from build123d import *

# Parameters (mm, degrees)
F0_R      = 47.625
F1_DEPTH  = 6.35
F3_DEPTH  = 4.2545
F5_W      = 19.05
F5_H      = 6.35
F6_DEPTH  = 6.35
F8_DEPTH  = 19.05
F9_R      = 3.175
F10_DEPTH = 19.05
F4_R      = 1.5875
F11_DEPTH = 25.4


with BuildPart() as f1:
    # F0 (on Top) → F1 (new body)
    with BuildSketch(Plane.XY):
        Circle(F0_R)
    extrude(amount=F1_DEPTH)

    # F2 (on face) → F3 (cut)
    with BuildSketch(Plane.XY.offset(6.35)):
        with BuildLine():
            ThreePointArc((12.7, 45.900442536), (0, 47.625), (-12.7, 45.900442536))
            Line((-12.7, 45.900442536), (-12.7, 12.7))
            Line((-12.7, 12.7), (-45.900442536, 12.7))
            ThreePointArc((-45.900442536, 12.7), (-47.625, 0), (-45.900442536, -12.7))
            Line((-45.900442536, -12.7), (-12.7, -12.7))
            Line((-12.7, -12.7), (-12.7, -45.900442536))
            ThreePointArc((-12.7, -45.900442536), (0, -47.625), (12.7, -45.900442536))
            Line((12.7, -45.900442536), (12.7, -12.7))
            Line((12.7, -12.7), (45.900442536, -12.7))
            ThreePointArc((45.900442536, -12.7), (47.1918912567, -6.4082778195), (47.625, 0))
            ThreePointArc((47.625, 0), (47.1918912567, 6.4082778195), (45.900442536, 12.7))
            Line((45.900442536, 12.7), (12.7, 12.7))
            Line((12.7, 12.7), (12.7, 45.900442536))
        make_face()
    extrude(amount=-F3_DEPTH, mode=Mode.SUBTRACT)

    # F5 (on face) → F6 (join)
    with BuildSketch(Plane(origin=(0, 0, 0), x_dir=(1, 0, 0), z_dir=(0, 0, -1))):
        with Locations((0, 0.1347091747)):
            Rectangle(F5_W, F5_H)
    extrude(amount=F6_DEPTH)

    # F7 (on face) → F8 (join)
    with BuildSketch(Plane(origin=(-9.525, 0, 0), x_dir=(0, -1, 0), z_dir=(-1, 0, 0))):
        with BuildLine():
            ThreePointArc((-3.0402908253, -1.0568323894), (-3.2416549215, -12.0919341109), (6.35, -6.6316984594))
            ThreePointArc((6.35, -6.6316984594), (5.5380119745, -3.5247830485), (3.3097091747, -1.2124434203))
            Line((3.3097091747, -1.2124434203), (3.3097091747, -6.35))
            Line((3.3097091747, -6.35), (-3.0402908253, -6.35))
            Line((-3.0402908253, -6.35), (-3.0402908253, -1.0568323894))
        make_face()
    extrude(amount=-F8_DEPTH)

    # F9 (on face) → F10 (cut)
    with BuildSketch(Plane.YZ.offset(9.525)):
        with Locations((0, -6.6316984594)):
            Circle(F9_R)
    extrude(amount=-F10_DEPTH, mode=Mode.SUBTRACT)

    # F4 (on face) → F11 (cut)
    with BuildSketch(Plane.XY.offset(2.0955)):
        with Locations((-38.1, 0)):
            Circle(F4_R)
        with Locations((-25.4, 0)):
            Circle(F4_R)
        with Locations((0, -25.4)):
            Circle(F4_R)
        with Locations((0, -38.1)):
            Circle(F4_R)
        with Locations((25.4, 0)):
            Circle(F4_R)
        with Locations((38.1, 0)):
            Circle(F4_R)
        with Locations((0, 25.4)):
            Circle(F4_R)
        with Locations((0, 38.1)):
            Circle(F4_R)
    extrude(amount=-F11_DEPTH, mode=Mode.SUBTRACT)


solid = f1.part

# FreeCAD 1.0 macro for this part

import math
import FreeCAD as App
import Part
import Sketcher

V = App.Vector
Q = App.Units.Quantity

doc = App.newDocument("Part")
params = doc.addObject("Spreadsheet::Sheet", "Params")
for row, (alias, value) in enumerate([
    ("sketch1_diameter", "3.75 in"),
    ("pad1_length", "0.25 in"),
    ("sketch2_radius", "1.875 in"),
    ("pocket1_length", "0.1675 in"),
    ("sketch3_width", "0.75 in"),
    ("sketch3_height", "0.25 in"),
    ("pad2_length", "0.25 in"),
    ("sketch4_radius", "0.25 in"),
    ("sketch4_width", "0.25 in"),
    ("pad3_length", "0.75 in"),
    ("sketch5_diameter", "0.25 in"),
    ("pocket2_length", "0.75 in"),
    ("sketch6_diameter", "0.125 in"),
    ("pocket3_length", "1 in"),
], start=1):
    params.set(f"A{row}", alias)
    params.set(f"B{row}", "=" + value)
    params.setAlias(f"B{row}", alias)

body = doc.addObject("PartDesign::Body", "Body")

sketch1 = body.newObject("Sketcher::SketchObject", "Sketch")
sketch1.AttachmentSupport = (doc.getObject("XY_Plane"), [""])
sketch1.MapMode = "FlatFace"
sketch1.addGeometry(Part.Circle(V(0, 0, 0), V(0, 0, 1), 47.625), False)
sketch1.addConstraint([
    Sketcher.Constraint("Coincident", 0, 3, -1, 1),
    Sketcher.Constraint("Diameter", 0, Q("3.75 in")),
])
sketch1.setExpression("Constraints[1]", "Params.sketch1_diameter")
pad1 = body.newObject("PartDesign::Pad", "Pad")
pad1.Profile = sketch1
pad1.setExpression("Length", "Params.pad1_length")

sketch2 = body.newObject("Sketcher::SketchObject", "Sketch001")
sketch2.AttachmentSupport = (doc.getObject("XY_Plane"), [""])
sketch2.MapMode = "FlatFace"
sketch2.AttachmentOffset = App.Placement(V(0, 0, 0.25 * 25.4), App.Rotation())
sketch2.addGeometry([
    Part.ArcOfCircle(Part.Circle(V(0, 0, 0), V(0, 0, 1), 47.625), math.radians(74.53399), math.radians(105.46601)),
    Part.LineSegment(V(-12.7, 45.900443, 0), V(-12.7, 12.7, 0)),
    Part.LineSegment(V(-12.7, 12.7, 0), V(-45.900443, 12.7, 0)),
    Part.ArcOfCircle(Part.Circle(V(0, 0, 0), V(0, 0, 1), 47.625), math.radians(164.53399), math.radians(195.46601)),
    Part.LineSegment(V(-45.900443, -12.7, 0), V(-12.7, -12.7, 0)),
    Part.LineSegment(V(-12.7, -12.7, 0), V(-12.7, -45.900443, 0)),
    Part.ArcOfCircle(Part.Circle(V(0, 0, 0), V(0, 0, 1), 47.625), math.radians(-105.46601), math.radians(-74.53399)),
    Part.LineSegment(V(12.7, -45.900443, 0), V(12.7, -12.7, 0)),
    Part.LineSegment(V(12.7, -12.7, 0), V(45.900443, -12.7, 0)),
    Part.ArcOfCircle(Part.Circle(V(0, 0, 0), V(0, 0, 1), 47.625), math.radians(-15.46601), math.radians(0)),
    Part.ArcOfCircle(Part.Circle(V(0, 0, 0), V(0, 0, 1), 47.625), math.radians(0), math.radians(15.46601)),
    Part.LineSegment(V(45.900443, 12.7, 0), V(12.7, 12.7, 0)),
    Part.LineSegment(V(12.7, 12.7, 0), V(12.7, 45.900443, 0)),
], False)
sketch2.addConstraint([
    Sketcher.Constraint("Coincident", 0, 2, 1, 1),
    Sketcher.Constraint("Coincident", 1, 2, 2, 1),
    Sketcher.Constraint("Coincident", 2, 2, 3, 1),
    Sketcher.Constraint("Coincident", 3, 2, 4, 1),
    Sketcher.Constraint("Coincident", 4, 2, 5, 1),
    Sketcher.Constraint("Coincident", 5, 2, 6, 1),
    Sketcher.Constraint("Coincident", 6, 2, 7, 1),
    Sketcher.Constraint("Coincident", 7, 2, 8, 1),
    Sketcher.Constraint("Coincident", 8, 2, 9, 1),
    Sketcher.Constraint("Tangent", 9, 2, 10, 1),
    Sketcher.Constraint("Coincident", 10, 2, 11, 1),
    Sketcher.Constraint("Coincident", 11, 2, 12, 1),
    Sketcher.Constraint("Coincident", 12, 2, 0, 1),
    Sketcher.Constraint("Vertical", 1),
    Sketcher.Constraint("Horizontal", 2),
    Sketcher.Constraint("Horizontal", 4),
    Sketcher.Constraint("Vertical", 5),
    Sketcher.Constraint("Vertical", 7),
    Sketcher.Constraint("Horizontal", 8),
    Sketcher.Constraint("Horizontal", 11),
    Sketcher.Constraint("Vertical", 12),
    Sketcher.Constraint("Coincident", 0, 3, -1, 1),
    Sketcher.Constraint("Coincident", 3, 3, -1, 1),
    Sketcher.Constraint("Coincident", 6, 3, -1, 1),
    Sketcher.Constraint("Coincident", 9, 3, -1, 1),
    Sketcher.Constraint("Equal", 0, 3),
    Sketcher.Constraint("Equal", 3, 6),
    Sketcher.Constraint("Equal", 6, 9),
    Sketcher.Constraint("Equal", 9, 10),
    Sketcher.Constraint("Symmetric", 1, 2, 7, 2, -1, 1),
    Sketcher.Constraint("Symmetric", 4, 2, 11, 2, -1, 1),
    Sketcher.Constraint("Symmetric", 4, 2, 7, 2, -2),
    Sketcher.Constraint("PointOnObject", 9, 2, -1),
    Sketcher.Constraint("Equal", 11, 1),
    Sketcher.Constraint("Radius", 0, Q("1.875 in")),
    Sketcher.Constraint("DistanceY", 3, 2, 2, 2, Q("1 in")),
])
sketch2.setExpression("Constraints[34]", "Params.sketch2_radius")
pocket1 = body.newObject("PartDesign::Pocket", "Pocket")
pocket1.Profile = sketch2
pocket1.setExpression("Length", "Params.pocket1_length")

sketch3 = body.newObject("Sketcher::SketchObject", "Sketch002")
sketch3.AttachmentSupport = (doc.getObject("XY_Plane"), [""])
sketch3.MapMode = "FlatFace"
sketch3.addGeometry([
    Part.LineSegment(V(-9.525, -3.309709, 0), V(-9.525, 3.040291, 0)),
    Part.LineSegment(V(-9.525, 3.040291, 0), V(9.525, 3.040291, 0)),
    Part.LineSegment(V(9.525, 3.040291, 0), V(9.525, -3.309709, 0)),
    Part.LineSegment(V(9.525, -3.309709, 0), V(-9.525, -3.309709, 0)),
], False)
sketch3.addConstraint([
    Sketcher.Constraint("Coincident", 0, 2, 1, 1),
    Sketcher.Constraint("Coincident", 1, 2, 2, 1),
    Sketcher.Constraint("Coincident", 2, 2, 3, 1),
    Sketcher.Constraint("Coincident", 3, 2, 0, 1),
    Sketcher.Constraint("Vertical", 0),
    Sketcher.Constraint("Horizontal", 1),
    Sketcher.Constraint("Vertical", 2),
    Sketcher.Constraint("Horizontal", 3),
    Sketcher.Constraint("DistanceX", 1, 1, 1, 2, Q("0.75 in")),
    Sketcher.Constraint("DistanceY", 0, 1, 0, 2, Q("0.25 in")),
    Sketcher.Constraint("DistanceX", 0, 2, -1, 1, Q("0.375 in")),
    Sketcher.Constraint("DistanceY", -1, 1, 0, 2, Q("3.040291 mm")),
])
sketch3.setExpression("Constraints[8]", "Params.sketch3_width")
sketch3.setExpression("Constraints[9]", "Params.sketch3_height")
pad2 = body.newObject("PartDesign::Pad", "Pad001")
pad2.Profile = sketch3
pad2.setExpression("Length", "Params.pad2_length")
pad2.Reversed = True

sketch4 = body.newObject("Sketcher::SketchObject", "Sketch003")
sketch4.AttachmentSupport = (doc.getObject("YZ_Plane"), [""])
sketch4.MapMode = "FlatFace"
sketch4.AttachmentOffset = App.Placement(V(0, 0, -0.375 * 25.4), App.Rotation())
sketch4.addGeometry([
    Part.ArcOfCircle(Part.Circle(V(0, -6.631698, 0), V(0, 0, 1), 6.35), math.radians(180), math.radians(421.393859)),
    Part.ArcOfCircle(Part.Circle(V(0, -6.631698, 0), V(0, 0, 1), 6.35), math.radians(121.413722), math.radians(180)),
    Part.LineSegment(V(-3.309709, -1.212443, 0), V(-3.309709, -6.35, 0)),
    Part.LineSegment(V(-3.309709, -6.35, 0), V(3.040291, -6.35, 0)),
    Part.LineSegment(V(3.040291, -6.35, 0), V(3.040291, -1.056832, 0)),
], False)
sketch4.addConstraint([
    Sketcher.Constraint("Tangent", 0, 1, 1, 2),
    Sketcher.Constraint("Coincident", 1, 1, 2, 1),
    Sketcher.Constraint("Coincident", 2, 2, 3, 1),
    Sketcher.Constraint("Coincident", 3, 2, 4, 1),
    Sketcher.Constraint("Coincident", 4, 2, 0, 2),
    Sketcher.Constraint("Vertical", 2),
    Sketcher.Constraint("Horizontal", 3),
    Sketcher.Constraint("Vertical", 4),
    Sketcher.Constraint("Equal", 0, 1),
    Sketcher.Constraint("PointOnObject", 0, 3, -2),
    Sketcher.Constraint("Horizontal", 1, 3, 0, 1),
    Sketcher.Constraint("Radius", 0, Q("0.25 in")),
    Sketcher.Constraint("DistanceX", 3, 1, 3, 2, Q("0.25 in")),
    Sketcher.Constraint("DistanceY", 2, 2, -1, 1, Q("0.25 in")),
    Sketcher.Constraint("DistanceY", 0, 3, -1, 1, Q("6.631698 mm")),
    Sketcher.Constraint("DistanceY", 2, 2, 2, 1, Q("5.137557 mm")),
])
sketch4.setExpression("Constraints[11]", "Params.sketch4_radius")
sketch4.setExpression("Constraints[12]", "Params.sketch4_width")
pad3 = body.newObject("PartDesign::Pad", "Pad002")
pad3.Profile = sketch4
pad3.setExpression("Length", "Params.pad3_length")

sketch5 = body.newObject("Sketcher::SketchObject", "Sketch004")
sketch5.AttachmentSupport = (doc.getObject("YZ_Plane"), [""])
sketch5.MapMode = "FlatFace"
sketch5.AttachmentOffset = App.Placement(V(0, 0, 0.375 * 25.4), App.Rotation())
sketch5.addGeometry(Part.Circle(V(0, -6.631698, 0), V(0, 0, 1), 3.175), False)
sketch5.addConstraint([
    Sketcher.Constraint("PointOnObject", 0, 3, -2),
    Sketcher.Constraint("Diameter", 0, Q("0.25 in")),
    Sketcher.Constraint("DistanceY", 0, 3, -1, 1, Q("6.631698 mm")),
])
sketch5.setExpression("Constraints[1]", "Params.sketch5_diameter")
pocket2 = body.newObject("PartDesign::Pocket", "Pocket001")
pocket2.Profile = sketch5
pocket2.setExpression("Length", "Params.pocket2_length")

sketch6 = body.newObject("Sketcher::SketchObject", "Sketch005")
sketch6.AttachmentSupport = (doc.getObject("XY_Plane"), [""])
sketch6.MapMode = "FlatFace"
sketch6.AttachmentOffset = App.Placement(V(0, 0, 0.0825 * 25.4), App.Rotation())
sketch6.addGeometry([
    Part.Circle(V(-38.1, 0, 0), V(0, 0, 1), 1.5875),
    Part.Circle(V(-25.4, 0, 0), V(0, 0, 1), 1.5875),
    Part.Circle(V(0, -25.4, 0), V(0, 0, 1), 1.5875),
    Part.Circle(V(0, -38.1, 0), V(0, 0, 1), 1.5875),
    Part.Circle(V(25.4, 0, 0), V(0, 0, 1), 1.5875),
    Part.Circle(V(38.1, 0, 0), V(0, 0, 1), 1.5875),
    Part.Circle(V(0, 25.4, 0), V(0, 0, 1), 1.5875),
    Part.Circle(V(0, 38.1, 0), V(0, 0, 1), 1.5875),
], False)
sketch6.addConstraint([
    Sketcher.Constraint("Equal", 0, 1),
    Sketcher.Constraint("Equal", 1, 2),
    Sketcher.Constraint("Equal", 2, 3),
    Sketcher.Constraint("Equal", 3, 4),
    Sketcher.Constraint("Equal", 4, 5),
    Sketcher.Constraint("Equal", 5, 6),
    Sketcher.Constraint("Equal", 6, 7),
    Sketcher.Constraint("Symmetric", 1, 3, 4, 3, -1, 1),
    Sketcher.Constraint("Symmetric", 0, 3, 5, 3, -1, 1),
    Sketcher.Constraint("Symmetric", 2, 3, 6, 3, -1, 1),
    Sketcher.Constraint("Symmetric", 3, 3, 7, 3, -1, 1),
    Sketcher.Constraint("PointOnObject", 0, 3, -1),
    Sketcher.Constraint("PointOnObject", 1, 3, -1),
    Sketcher.Constraint("PointOnObject", 2, 3, -2),
    Sketcher.Constraint("PointOnObject", 3, 3, -2),
    Sketcher.Constraint("Diameter", 0, Q("0.125 in")),
    Sketcher.Constraint("DistanceX", 1, 3, -1, 1, Q("1 in")),
    Sketcher.Constraint("DistanceY", 2, 3, -1, 1, Q("1 in")),
    Sketcher.Constraint("DistanceX", 0, 3, 5, 3, Q("3 in")),
    Sketcher.Constraint("DistanceY", 3, 3, -1, 1, Q("1.5 in")),
])
sketch6.setExpression("Constraints[15]", "Params.sketch6_diameter")
pocket3 = body.newObject("PartDesign::Pocket", "Pocket002")
pocket3.Profile = sketch6
pocket3.setExpression("Length", "Params.pocket3_length")

doc.recompute()
